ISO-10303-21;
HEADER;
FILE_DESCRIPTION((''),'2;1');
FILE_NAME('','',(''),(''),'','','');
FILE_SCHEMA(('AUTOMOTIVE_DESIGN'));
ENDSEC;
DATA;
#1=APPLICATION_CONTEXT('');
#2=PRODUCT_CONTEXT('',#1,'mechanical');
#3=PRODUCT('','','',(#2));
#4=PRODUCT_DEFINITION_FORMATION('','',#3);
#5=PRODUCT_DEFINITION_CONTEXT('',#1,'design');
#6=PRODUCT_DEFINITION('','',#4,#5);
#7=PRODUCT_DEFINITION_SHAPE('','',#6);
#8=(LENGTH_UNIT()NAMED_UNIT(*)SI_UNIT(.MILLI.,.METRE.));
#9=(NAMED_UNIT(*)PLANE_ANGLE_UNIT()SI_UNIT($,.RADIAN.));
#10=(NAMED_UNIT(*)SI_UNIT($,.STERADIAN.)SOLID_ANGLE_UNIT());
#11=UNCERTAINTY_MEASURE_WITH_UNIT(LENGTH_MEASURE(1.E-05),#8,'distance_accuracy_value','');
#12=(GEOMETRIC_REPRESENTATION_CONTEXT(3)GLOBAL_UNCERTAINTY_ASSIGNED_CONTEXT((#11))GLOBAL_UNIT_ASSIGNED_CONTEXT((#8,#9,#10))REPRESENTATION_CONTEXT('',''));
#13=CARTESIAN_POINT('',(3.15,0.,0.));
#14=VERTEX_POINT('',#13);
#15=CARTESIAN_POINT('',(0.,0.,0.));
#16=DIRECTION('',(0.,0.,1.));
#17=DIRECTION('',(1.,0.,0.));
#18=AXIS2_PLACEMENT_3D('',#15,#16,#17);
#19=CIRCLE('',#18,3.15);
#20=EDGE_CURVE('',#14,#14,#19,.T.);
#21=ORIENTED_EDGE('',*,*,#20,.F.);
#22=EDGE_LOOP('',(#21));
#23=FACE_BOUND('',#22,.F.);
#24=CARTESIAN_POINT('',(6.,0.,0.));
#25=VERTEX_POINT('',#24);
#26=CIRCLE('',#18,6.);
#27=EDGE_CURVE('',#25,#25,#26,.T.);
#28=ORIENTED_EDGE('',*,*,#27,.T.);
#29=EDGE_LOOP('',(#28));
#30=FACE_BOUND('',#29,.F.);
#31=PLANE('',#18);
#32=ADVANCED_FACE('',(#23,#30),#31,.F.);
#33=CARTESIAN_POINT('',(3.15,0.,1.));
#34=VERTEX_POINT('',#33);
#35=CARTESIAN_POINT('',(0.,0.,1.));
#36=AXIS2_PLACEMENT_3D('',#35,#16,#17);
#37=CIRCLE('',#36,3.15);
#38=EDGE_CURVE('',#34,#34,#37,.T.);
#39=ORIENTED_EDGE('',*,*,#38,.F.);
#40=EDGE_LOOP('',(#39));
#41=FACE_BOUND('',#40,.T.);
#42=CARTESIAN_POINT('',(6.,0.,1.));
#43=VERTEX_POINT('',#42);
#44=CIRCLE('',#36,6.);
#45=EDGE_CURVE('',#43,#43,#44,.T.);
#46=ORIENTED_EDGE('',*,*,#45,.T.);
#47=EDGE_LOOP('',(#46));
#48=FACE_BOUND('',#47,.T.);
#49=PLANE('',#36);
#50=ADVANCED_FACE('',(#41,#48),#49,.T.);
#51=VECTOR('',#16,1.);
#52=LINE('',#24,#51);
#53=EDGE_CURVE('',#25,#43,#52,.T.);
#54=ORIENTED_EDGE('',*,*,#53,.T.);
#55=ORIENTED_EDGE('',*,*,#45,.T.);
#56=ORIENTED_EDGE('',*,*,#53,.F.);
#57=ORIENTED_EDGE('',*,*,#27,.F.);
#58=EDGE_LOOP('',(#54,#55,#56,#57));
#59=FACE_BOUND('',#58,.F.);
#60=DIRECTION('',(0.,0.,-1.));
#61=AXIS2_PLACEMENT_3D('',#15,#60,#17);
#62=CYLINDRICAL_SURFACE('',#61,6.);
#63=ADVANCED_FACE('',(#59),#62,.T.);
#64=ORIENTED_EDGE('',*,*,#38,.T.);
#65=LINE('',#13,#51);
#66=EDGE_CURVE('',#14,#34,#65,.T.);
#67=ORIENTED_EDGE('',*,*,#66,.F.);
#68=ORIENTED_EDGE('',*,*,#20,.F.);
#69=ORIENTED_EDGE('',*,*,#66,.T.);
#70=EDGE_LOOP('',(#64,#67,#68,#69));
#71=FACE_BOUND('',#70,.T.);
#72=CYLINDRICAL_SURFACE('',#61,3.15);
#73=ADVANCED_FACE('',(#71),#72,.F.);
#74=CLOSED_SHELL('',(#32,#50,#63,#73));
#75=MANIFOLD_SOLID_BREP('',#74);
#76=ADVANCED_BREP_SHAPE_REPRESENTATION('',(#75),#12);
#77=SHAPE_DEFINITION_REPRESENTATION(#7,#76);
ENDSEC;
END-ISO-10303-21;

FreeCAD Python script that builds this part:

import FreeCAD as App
import Part
import Sketcher
from FreeCAD import Vector
Q = App.Units.Quantity

doc = App.newDocument("Part")
body = doc.addObject("PartDesign::Body", "Body")

# Sketch on XY plane
sketch1 = doc.addObject("Sketcher::SketchObject", "Sketch")
body.addObject(sketch1)
sketch1.AttachmentSupport = (doc.XY_Plane, [""])
sketch1.MapMode = "FlatFace"
sketch1.addGeometry(Part.Circle(Vector(0, 0, 0), Vector(0, 0, 1), 6), False)
sketch1.addGeometry(Part.Circle(Vector(0, 0, 0), Vector(0, 0, 1), 3.1), False)
sketch1.addConstraint(Sketcher.Constraint("Coincident", 0, 3, -1, 1))
sketch1.addConstraint(Sketcher.Constraint("Coincident", 1, 3, -1, 1))
sketch1.addConstraint(Sketcher.Constraint("Diameter", 0, Q("12 mm")))
sketch1.addConstraint(Sketcher.Constraint("Diameter", 1, Q("6.3 mm")))
pad1 = doc.addObject("PartDesign::Pad", "Pad")
body.addObject(pad1)
pad1.Profile = sketch1
pad1.Length = 1

doc.recompute()
